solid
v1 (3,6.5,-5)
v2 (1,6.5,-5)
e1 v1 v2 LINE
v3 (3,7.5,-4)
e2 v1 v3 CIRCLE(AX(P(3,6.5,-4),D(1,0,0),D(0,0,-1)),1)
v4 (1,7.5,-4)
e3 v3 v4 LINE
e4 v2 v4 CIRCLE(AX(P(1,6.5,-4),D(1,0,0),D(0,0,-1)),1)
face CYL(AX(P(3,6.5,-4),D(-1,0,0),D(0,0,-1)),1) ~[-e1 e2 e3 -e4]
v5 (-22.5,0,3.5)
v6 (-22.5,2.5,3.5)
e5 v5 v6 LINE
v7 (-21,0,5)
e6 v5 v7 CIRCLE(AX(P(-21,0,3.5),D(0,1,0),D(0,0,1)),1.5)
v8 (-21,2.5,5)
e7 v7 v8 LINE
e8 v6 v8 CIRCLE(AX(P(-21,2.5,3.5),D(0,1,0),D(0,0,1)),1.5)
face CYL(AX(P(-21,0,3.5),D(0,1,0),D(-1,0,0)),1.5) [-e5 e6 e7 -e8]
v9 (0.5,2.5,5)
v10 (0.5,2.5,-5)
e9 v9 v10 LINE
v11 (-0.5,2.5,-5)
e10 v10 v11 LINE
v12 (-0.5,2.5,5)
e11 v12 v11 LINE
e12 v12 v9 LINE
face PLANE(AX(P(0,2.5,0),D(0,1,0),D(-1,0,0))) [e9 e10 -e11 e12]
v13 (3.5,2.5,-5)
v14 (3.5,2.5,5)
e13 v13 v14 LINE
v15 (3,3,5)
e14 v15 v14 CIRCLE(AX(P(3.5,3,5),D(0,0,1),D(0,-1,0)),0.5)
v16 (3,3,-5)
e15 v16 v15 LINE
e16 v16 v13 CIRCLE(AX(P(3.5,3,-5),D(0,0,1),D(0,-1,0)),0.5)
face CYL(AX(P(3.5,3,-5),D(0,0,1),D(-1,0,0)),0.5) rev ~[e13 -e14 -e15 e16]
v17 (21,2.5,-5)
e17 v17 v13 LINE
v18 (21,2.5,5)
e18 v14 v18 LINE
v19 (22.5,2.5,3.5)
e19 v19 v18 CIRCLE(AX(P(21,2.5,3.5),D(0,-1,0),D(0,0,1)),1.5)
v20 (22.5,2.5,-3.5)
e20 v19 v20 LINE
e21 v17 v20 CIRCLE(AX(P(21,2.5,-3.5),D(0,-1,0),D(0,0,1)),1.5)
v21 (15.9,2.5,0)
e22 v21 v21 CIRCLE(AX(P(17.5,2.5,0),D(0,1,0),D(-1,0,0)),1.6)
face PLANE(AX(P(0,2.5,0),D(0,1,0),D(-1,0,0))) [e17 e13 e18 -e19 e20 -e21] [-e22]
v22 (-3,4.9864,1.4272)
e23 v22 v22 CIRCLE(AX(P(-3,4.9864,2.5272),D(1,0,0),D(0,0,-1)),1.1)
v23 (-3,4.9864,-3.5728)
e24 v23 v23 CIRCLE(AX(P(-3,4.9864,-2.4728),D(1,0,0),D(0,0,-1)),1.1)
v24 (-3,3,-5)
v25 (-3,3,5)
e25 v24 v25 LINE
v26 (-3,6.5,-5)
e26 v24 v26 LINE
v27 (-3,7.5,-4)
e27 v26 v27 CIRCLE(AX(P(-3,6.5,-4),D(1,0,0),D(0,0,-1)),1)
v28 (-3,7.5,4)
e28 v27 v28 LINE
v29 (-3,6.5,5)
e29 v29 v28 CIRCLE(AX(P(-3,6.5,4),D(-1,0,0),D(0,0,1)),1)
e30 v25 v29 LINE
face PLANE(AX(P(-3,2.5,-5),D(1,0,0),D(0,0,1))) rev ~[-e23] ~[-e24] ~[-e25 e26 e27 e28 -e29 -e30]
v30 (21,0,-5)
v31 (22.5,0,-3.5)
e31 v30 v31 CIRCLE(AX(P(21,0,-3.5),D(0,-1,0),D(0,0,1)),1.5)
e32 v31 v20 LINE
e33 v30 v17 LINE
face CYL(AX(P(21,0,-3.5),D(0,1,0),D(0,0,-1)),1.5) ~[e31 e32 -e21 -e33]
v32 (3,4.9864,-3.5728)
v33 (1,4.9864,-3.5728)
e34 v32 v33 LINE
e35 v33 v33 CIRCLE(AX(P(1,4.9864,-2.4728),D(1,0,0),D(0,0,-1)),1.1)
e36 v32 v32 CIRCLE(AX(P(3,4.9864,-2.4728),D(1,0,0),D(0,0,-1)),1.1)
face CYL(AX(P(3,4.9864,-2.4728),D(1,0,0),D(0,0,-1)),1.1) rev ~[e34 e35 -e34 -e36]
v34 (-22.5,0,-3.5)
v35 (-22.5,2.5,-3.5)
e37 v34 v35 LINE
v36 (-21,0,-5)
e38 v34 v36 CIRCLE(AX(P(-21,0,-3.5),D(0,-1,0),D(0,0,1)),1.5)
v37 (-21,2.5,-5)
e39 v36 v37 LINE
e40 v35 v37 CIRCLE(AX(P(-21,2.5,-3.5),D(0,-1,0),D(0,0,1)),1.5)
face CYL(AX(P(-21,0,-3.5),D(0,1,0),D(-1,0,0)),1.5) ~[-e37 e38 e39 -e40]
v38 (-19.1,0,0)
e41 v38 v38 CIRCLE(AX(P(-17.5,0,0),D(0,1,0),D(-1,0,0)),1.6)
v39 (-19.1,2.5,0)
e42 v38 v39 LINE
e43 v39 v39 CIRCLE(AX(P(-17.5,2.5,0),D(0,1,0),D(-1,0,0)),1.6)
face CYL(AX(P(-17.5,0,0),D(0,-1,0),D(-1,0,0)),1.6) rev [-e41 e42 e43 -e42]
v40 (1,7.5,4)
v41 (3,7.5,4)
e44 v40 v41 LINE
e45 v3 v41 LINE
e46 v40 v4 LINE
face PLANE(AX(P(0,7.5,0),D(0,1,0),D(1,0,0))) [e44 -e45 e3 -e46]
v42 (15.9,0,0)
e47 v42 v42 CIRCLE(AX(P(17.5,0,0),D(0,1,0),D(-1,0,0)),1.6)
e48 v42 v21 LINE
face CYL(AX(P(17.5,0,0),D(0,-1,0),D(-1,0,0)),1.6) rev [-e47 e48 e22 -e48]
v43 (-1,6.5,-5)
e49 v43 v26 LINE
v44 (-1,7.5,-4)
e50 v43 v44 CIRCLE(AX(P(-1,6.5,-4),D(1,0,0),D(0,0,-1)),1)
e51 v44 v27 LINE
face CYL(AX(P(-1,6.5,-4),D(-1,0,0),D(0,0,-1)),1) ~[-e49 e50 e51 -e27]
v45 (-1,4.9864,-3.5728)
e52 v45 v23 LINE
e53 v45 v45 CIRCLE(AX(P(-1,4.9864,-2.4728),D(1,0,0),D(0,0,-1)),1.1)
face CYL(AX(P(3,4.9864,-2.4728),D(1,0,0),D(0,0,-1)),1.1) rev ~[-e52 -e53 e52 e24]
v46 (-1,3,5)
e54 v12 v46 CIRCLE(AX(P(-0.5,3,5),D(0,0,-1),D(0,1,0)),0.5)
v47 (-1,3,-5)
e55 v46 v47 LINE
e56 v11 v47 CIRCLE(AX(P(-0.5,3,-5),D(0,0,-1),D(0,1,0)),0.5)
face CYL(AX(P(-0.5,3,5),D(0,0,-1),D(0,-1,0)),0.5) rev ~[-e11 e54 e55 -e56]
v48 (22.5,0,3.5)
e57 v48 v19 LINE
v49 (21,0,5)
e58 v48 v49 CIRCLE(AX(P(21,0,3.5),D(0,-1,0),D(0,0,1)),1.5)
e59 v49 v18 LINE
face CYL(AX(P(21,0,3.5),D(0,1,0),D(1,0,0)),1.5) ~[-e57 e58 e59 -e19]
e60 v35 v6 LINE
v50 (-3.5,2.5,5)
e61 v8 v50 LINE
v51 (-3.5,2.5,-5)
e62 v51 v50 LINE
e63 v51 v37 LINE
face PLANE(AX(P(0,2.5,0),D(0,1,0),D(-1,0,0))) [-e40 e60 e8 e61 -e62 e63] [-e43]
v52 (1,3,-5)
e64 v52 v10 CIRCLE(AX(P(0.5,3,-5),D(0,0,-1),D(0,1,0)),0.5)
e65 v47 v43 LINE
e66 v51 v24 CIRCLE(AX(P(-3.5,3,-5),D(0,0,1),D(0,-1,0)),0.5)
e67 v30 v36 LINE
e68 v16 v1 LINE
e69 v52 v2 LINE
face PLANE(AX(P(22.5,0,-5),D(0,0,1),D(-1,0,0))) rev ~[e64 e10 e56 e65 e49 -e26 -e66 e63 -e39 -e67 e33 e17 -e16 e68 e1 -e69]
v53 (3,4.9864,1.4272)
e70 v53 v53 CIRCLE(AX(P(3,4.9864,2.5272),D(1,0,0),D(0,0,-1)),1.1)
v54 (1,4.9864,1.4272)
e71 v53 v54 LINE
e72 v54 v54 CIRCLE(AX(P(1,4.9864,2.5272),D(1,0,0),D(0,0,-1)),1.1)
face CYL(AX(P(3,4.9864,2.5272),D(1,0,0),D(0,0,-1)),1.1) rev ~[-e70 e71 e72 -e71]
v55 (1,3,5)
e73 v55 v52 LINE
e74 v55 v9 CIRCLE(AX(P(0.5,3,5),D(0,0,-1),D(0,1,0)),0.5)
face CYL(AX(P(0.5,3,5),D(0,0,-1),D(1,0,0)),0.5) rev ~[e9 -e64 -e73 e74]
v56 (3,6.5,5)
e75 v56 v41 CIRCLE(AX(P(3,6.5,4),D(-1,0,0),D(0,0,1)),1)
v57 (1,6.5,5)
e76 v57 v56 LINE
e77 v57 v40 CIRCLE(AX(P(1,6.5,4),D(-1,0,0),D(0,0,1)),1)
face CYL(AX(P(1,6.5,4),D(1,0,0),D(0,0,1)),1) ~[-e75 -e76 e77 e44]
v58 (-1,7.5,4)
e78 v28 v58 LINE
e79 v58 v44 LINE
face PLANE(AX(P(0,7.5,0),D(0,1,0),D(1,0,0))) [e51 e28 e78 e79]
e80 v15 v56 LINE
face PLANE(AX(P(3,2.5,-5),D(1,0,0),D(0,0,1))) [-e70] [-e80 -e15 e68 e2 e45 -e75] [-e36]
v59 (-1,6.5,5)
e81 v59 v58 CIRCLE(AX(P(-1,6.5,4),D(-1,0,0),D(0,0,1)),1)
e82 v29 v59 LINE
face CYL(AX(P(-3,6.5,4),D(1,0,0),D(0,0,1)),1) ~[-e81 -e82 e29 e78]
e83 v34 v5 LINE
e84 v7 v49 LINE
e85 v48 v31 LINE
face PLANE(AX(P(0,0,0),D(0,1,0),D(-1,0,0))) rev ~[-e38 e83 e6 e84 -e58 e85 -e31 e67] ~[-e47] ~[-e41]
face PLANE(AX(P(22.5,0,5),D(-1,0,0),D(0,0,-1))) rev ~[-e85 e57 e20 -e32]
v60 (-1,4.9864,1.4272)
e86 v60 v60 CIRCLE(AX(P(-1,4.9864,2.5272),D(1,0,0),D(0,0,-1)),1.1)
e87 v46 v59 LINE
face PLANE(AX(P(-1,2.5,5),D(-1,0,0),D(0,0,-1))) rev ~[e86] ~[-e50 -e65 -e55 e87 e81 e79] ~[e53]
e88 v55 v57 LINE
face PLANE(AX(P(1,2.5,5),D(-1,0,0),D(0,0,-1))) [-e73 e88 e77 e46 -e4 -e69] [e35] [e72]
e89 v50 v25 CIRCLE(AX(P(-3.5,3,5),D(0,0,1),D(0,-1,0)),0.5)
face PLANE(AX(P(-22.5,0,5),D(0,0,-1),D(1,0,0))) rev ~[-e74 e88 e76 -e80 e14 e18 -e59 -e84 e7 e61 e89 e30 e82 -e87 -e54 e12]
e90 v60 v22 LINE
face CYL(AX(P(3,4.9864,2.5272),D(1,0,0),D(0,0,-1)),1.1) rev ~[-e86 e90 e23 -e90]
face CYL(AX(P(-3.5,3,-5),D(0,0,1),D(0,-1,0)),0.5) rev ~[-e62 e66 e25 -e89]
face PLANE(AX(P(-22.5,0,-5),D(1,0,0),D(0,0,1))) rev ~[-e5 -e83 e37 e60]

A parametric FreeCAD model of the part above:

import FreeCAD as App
import Part
import Sketcher
from FreeCAD import Vector
Q = App.Units.Quantity


def edges_at(feature, points):
    """Names of the edges that pass closest to the given points."""
    edges = feature.Shape.Edges
    near = lambda p: min(range(len(edges)), key=lambda i: edges[i].distToShape(Part.Vertex(*p))[0])
    return sorted({f"Edge{near(p) + 1}" for p in points})

doc = App.newDocument("Part")
params = doc.addObject("Spreadsheet::Sheet", "Params")
for row, (alias, value) in enumerate([
    ("sketch1_diameter", "3.2 mm"),
    ("sketch1_width", "45 mm"),
    ("pad1_length", "2.5 mm"),
    ("fillet_radius", "1.5 mm"),
    ("sketch2_width", "2 mm"),
    ("sketch2_height", "10 mm"),
    ("pad2_length", "5 mm"),
    ("sketch3_diameter", "2.2 mm"),
    ("pocket1_length", "6 mm"),
    ("fillet2_radius", "1 mm"),
    ("fillet3_radius", "0.5 mm"),
], start=1):
    params.set(f"A{row}", alias)
    params.set(f"B{row}", "=" + value)
    params.setAlias(f"B{row}", alias)

body = doc.addObject("PartDesign::Body", "Body")

sketch1 = doc.addObject("Sketcher::SketchObject", "Sketch")
body.addObject(sketch1)
sketch1.AttachmentSupport = (doc.XZ_Plane, [""])
sketch1.MapMode = "FlatFace"
sketch1.addGeometry(Part.LineSegment(Vector(-22.5, -5, 0), Vector(-22.5, 5, 0)), False)
sketch1.addGeometry(Part.LineSegment(Vector(-22.5, 5, 0), Vector(22.5, 5, 0)), False)
sketch1.addGeometry(Part.LineSegment(Vector(22.5, 5, 0), Vector(22.5, -5, 0)), False)
sketch1.addGeometry(Part.LineSegment(Vector(22.5, -5, 0), Vector(-22.5, -5, 0)), False)
sketch1.addGeometry(Part.Circle(Vector(17.5, 0, 0), Vector(0, 0, 1), 1.6), False)
sketch1.addGeometry(Part.Circle(Vector(-17.5, 0, 0), Vector(0, 0, 1), 1.6), False)
sketch1.addConstraint(Sketcher.Constraint("Coincident", 0, 2, 1, 1))
sketch1.addConstraint(Sketcher.Constraint("Coincident", 1, 2, 2, 1))
sketch1.addConstraint(Sketcher.Constraint("Coincident", 2, 2, 3, 1))
sketch1.addConstraint(Sketcher.Constraint("Coincident", 3, 2, 0, 1))
sketch1.addConstraint(Sketcher.Constraint("Vertical", 0))
sketch1.addConstraint(Sketcher.Constraint("Horizontal", 1))
sketch1.addConstraint(Sketcher.Constraint("Vertical", 2))
sketch1.addConstraint(Sketcher.Constraint("Horizontal", 3))
sketch1.addConstraint(Sketcher.Constraint("Equal", 4, 5))
sketch1.addConstraint(Sketcher.Constraint("Symmetric", 4, 3, 5, 3, -1, 1))
sketch1.addConstraint(Sketcher.Constraint("Symmetric", 0, 2, 2, 2, -1, 1))
sketch1.addConstraint(Sketcher.Constraint("PointOnObject", 4, 3, -1))
sketch1.addConstraint(Sketcher.Constraint("Diameter", 4, Q("3.2 mm")))
sketch1.addConstraint(Sketcher.Constraint("DistanceY", -1, 1, 0, 2, Q("5 mm")))
sketch1.addConstraint(Sketcher.Constraint("DistanceX", 0, 2, 5, 3, Q("5 mm")))
sketch1.addConstraint(Sketcher.Constraint("DistanceX", 1, 1, 1, 2, Q("45 mm")))
sketch1.setExpression("Constraints[12]", "Params.sketch1_diameter")
sketch1.setExpression("Constraints[15]", "Params.sketch1_width")
pad1 = doc.addObject("PartDesign::Pad", "Pad")
body.addObject(pad1)
pad1.Profile = sketch1
pad1.setExpression("Length", "Params.pad1_length")
pad1.Reversed = True
doc.recompute()

fillet = doc.addObject("PartDesign::Fillet", "Fillet")
body.addObject(fillet)
fillet.Base = (pad1, edges_at(pad1, [
    (-22.5, 1.25, 5),
    (22.5, 1.25, 5),
    (22.5, 1.25, -5),
    (-22.5, 1.25, -5),
]))
fillet.setExpression("Radius", "Params.fillet_radius")

sketch2 = doc.addObject("Sketcher::SketchObject", "Sketch001")
body.addObject(sketch2)
sketch2.AttachmentSupport = (doc.XZ_Plane, [""])
sketch2.MapMode = "FlatFace"
sketch2.AttachmentOffset = App.Placement(Vector(0, 0, -2.5), App.Rotation())
sketch2.addGeometry(Part.LineSegment(Vector(-1, 5, 0), Vector(-1, -5, 0)), False)
sketch2.addGeometry(Part.LineSegment(Vector(-1, -5, 0), Vector(-3, -5, 0)), False)
sketch2.addGeometry(Part.LineSegment(Vector(-3, -5, 0), Vector(-3, 5, 0)), False)
sketch2.addGeometry(Part.LineSegment(Vector(-3, 5, 0), Vector(-1, 5, 0)), False)
sketch2.addGeometry(Part.LineSegment(Vector(3, -5, 0), Vector(1, -5, 0)), False)
sketch2.addGeometry(Part.LineSegment(Vector(1, -5, 0), Vector(1, 5, 0)), False)
sketch2.addGeometry(Part.LineSegment(Vector(1, 5, 0), Vector(3, 5, 0)), False)
sketch2.addGeometry(Part.LineSegment(Vector(3, 5, 0), Vector(3, -5, 0)), False)
sketch2.addConstraint(Sketcher.Constraint("Coincident", 0, 2, 1, 1))
sketch2.addConstraint(Sketcher.Constraint("Coincident", 1, 2, 2, 1))
sketch2.addConstraint(Sketcher.Constraint("Coincident", 2, 2, 3, 1))
sketch2.addConstraint(Sketcher.Constraint("Coincident", 3, 2, 0, 1))
sketch2.addConstraint(Sketcher.Constraint("Coincident", 4, 2, 5, 1))
sketch2.addConstraint(Sketcher.Constraint("Coincident", 5, 2, 6, 1))
sketch2.addConstraint(Sketcher.Constraint("Coincident", 6, 2, 7, 1))
sketch2.addConstraint(Sketcher.Constraint("Coincident", 7, 2, 4, 1))
sketch2.addConstraint(Sketcher.Constraint("Vertical", 0))
sketch2.addConstraint(Sketcher.Constraint("Horizontal", 1))
sketch2.addConstraint(Sketcher.Constraint("Vertical", 2))
sketch2.addConstraint(Sketcher.Constraint("Horizontal", 3))
sketch2.addConstraint(Sketcher.Constraint("Horizontal", 4))
sketch2.addConstraint(Sketcher.Constraint("Vertical", 5))
sketch2.addConstraint(Sketcher.Constraint("Horizontal", 6))
sketch2.addConstraint(Sketcher.Constraint("Vertical", 7))
sketch2.addConstraint(Sketcher.Constraint("Symmetric", 3, 2, 4, 2, -1, 1))
sketch2.addConstraint(Sketcher.Constraint("Symmetric", 1, 2, 6, 2, -1, 1))
sketch2.addConstraint(Sketcher.Constraint("Horizontal", 1, 2, 4, 2))
sketch2.addConstraint(Sketcher.Constraint("DistanceX", 1, 2, 1, 1, Q("2 mm")))
sketch2.addConstraint(Sketcher.Constraint("DistanceX", 0, 2, 4, 2, Q("2 mm")))
sketch2.addConstraint(Sketcher.Constraint("DistanceY", 0, 2, 0, 1, Q("10 mm")))
sketch2.setExpression("Constraints[19]", "Params.sketch2_width")
sketch2.setExpression("Constraints[21]", "Params.sketch2_height")
pad2 = doc.addObject("PartDesign::Pad", "Pad001")
body.addObject(pad2)
pad2.Profile = sketch2
pad2.setExpression("Length", "Params.pad2_length")
pad2.Reversed = True

sketch3 = doc.addObject("Sketcher::SketchObject", "Sketch002")
body.addObject(sketch3)
sketch3.AttachmentSupport = (doc.YZ_Plane, [""])
sketch3.MapMode = "FlatFace"
sketch3.AttachmentOffset = App.Placement(Vector(0, 0, 3), App.Rotation())
sketch3.addGeometry(Part.Circle(Vector(5, 2.5, 0), Vector(0, 0, 1), 1.1), False)
sketch3.addGeometry(Part.Circle(Vector(5, -2.5, 0), Vector(0, 0, 1), 1.1), False)
sketch3.addConstraint(Sketcher.Constraint("Equal", 0, 1))
sketch3.addConstraint(Sketcher.Constraint("Vertical", 0, 3, 1, 3))
sketch3.addConstraint(Sketcher.Constraint("Diameter", 0, Q("2.2 mm")))
sketch3.addConstraint(Sketcher.Constraint("DistanceY", 1, 3, 0, 3, Q("5 mm")))
sketch3.addConstraint(Sketcher.Constraint("DistanceX", -1, 1, 0, 3, Q("4.9864 mm")))
sketch3.addConstraint(Sketcher.Constraint("DistanceY", -1, 1, 0, 3, Q("2.5272 mm")))
sketch3.setExpression("Constraints[2]", "Params.sketch3_diameter")
pocket1 = doc.addObject("PartDesign::Pocket", "Pocket")
body.addObject(pocket1)
pocket1.Profile = sketch3
pocket1.setExpression("Length", "Params.pocket1_length")
doc.recompute()

fillet2 = doc.addObject("PartDesign::Fillet", "Fillet001")
body.addObject(fillet2)
fillet2.Base = (pocket1, edges_at(pocket1, [
    (-2, 7.5, 5),
    (2, 7.5, 5),
    (2, 7.5, -5),
    (-2, 7.5, -5),
]))
fillet2.setExpression("Radius", "Params.fillet2_radius")
doc.recompute()

fillet3 = doc.addObject("PartDesign::Fillet", "Fillet002")
body.addObject(fillet3)
fillet3.Base = (fillet2, edges_at(fillet2, [
    (-3, 2.5, 0),
    (-1, 2.5, 0),
    (3, 2.5, 0),
    (1, 2.5, 0),
]))
fillet3.setExpression("Radius", "Params.fillet3_radius")

doc.recompute()
